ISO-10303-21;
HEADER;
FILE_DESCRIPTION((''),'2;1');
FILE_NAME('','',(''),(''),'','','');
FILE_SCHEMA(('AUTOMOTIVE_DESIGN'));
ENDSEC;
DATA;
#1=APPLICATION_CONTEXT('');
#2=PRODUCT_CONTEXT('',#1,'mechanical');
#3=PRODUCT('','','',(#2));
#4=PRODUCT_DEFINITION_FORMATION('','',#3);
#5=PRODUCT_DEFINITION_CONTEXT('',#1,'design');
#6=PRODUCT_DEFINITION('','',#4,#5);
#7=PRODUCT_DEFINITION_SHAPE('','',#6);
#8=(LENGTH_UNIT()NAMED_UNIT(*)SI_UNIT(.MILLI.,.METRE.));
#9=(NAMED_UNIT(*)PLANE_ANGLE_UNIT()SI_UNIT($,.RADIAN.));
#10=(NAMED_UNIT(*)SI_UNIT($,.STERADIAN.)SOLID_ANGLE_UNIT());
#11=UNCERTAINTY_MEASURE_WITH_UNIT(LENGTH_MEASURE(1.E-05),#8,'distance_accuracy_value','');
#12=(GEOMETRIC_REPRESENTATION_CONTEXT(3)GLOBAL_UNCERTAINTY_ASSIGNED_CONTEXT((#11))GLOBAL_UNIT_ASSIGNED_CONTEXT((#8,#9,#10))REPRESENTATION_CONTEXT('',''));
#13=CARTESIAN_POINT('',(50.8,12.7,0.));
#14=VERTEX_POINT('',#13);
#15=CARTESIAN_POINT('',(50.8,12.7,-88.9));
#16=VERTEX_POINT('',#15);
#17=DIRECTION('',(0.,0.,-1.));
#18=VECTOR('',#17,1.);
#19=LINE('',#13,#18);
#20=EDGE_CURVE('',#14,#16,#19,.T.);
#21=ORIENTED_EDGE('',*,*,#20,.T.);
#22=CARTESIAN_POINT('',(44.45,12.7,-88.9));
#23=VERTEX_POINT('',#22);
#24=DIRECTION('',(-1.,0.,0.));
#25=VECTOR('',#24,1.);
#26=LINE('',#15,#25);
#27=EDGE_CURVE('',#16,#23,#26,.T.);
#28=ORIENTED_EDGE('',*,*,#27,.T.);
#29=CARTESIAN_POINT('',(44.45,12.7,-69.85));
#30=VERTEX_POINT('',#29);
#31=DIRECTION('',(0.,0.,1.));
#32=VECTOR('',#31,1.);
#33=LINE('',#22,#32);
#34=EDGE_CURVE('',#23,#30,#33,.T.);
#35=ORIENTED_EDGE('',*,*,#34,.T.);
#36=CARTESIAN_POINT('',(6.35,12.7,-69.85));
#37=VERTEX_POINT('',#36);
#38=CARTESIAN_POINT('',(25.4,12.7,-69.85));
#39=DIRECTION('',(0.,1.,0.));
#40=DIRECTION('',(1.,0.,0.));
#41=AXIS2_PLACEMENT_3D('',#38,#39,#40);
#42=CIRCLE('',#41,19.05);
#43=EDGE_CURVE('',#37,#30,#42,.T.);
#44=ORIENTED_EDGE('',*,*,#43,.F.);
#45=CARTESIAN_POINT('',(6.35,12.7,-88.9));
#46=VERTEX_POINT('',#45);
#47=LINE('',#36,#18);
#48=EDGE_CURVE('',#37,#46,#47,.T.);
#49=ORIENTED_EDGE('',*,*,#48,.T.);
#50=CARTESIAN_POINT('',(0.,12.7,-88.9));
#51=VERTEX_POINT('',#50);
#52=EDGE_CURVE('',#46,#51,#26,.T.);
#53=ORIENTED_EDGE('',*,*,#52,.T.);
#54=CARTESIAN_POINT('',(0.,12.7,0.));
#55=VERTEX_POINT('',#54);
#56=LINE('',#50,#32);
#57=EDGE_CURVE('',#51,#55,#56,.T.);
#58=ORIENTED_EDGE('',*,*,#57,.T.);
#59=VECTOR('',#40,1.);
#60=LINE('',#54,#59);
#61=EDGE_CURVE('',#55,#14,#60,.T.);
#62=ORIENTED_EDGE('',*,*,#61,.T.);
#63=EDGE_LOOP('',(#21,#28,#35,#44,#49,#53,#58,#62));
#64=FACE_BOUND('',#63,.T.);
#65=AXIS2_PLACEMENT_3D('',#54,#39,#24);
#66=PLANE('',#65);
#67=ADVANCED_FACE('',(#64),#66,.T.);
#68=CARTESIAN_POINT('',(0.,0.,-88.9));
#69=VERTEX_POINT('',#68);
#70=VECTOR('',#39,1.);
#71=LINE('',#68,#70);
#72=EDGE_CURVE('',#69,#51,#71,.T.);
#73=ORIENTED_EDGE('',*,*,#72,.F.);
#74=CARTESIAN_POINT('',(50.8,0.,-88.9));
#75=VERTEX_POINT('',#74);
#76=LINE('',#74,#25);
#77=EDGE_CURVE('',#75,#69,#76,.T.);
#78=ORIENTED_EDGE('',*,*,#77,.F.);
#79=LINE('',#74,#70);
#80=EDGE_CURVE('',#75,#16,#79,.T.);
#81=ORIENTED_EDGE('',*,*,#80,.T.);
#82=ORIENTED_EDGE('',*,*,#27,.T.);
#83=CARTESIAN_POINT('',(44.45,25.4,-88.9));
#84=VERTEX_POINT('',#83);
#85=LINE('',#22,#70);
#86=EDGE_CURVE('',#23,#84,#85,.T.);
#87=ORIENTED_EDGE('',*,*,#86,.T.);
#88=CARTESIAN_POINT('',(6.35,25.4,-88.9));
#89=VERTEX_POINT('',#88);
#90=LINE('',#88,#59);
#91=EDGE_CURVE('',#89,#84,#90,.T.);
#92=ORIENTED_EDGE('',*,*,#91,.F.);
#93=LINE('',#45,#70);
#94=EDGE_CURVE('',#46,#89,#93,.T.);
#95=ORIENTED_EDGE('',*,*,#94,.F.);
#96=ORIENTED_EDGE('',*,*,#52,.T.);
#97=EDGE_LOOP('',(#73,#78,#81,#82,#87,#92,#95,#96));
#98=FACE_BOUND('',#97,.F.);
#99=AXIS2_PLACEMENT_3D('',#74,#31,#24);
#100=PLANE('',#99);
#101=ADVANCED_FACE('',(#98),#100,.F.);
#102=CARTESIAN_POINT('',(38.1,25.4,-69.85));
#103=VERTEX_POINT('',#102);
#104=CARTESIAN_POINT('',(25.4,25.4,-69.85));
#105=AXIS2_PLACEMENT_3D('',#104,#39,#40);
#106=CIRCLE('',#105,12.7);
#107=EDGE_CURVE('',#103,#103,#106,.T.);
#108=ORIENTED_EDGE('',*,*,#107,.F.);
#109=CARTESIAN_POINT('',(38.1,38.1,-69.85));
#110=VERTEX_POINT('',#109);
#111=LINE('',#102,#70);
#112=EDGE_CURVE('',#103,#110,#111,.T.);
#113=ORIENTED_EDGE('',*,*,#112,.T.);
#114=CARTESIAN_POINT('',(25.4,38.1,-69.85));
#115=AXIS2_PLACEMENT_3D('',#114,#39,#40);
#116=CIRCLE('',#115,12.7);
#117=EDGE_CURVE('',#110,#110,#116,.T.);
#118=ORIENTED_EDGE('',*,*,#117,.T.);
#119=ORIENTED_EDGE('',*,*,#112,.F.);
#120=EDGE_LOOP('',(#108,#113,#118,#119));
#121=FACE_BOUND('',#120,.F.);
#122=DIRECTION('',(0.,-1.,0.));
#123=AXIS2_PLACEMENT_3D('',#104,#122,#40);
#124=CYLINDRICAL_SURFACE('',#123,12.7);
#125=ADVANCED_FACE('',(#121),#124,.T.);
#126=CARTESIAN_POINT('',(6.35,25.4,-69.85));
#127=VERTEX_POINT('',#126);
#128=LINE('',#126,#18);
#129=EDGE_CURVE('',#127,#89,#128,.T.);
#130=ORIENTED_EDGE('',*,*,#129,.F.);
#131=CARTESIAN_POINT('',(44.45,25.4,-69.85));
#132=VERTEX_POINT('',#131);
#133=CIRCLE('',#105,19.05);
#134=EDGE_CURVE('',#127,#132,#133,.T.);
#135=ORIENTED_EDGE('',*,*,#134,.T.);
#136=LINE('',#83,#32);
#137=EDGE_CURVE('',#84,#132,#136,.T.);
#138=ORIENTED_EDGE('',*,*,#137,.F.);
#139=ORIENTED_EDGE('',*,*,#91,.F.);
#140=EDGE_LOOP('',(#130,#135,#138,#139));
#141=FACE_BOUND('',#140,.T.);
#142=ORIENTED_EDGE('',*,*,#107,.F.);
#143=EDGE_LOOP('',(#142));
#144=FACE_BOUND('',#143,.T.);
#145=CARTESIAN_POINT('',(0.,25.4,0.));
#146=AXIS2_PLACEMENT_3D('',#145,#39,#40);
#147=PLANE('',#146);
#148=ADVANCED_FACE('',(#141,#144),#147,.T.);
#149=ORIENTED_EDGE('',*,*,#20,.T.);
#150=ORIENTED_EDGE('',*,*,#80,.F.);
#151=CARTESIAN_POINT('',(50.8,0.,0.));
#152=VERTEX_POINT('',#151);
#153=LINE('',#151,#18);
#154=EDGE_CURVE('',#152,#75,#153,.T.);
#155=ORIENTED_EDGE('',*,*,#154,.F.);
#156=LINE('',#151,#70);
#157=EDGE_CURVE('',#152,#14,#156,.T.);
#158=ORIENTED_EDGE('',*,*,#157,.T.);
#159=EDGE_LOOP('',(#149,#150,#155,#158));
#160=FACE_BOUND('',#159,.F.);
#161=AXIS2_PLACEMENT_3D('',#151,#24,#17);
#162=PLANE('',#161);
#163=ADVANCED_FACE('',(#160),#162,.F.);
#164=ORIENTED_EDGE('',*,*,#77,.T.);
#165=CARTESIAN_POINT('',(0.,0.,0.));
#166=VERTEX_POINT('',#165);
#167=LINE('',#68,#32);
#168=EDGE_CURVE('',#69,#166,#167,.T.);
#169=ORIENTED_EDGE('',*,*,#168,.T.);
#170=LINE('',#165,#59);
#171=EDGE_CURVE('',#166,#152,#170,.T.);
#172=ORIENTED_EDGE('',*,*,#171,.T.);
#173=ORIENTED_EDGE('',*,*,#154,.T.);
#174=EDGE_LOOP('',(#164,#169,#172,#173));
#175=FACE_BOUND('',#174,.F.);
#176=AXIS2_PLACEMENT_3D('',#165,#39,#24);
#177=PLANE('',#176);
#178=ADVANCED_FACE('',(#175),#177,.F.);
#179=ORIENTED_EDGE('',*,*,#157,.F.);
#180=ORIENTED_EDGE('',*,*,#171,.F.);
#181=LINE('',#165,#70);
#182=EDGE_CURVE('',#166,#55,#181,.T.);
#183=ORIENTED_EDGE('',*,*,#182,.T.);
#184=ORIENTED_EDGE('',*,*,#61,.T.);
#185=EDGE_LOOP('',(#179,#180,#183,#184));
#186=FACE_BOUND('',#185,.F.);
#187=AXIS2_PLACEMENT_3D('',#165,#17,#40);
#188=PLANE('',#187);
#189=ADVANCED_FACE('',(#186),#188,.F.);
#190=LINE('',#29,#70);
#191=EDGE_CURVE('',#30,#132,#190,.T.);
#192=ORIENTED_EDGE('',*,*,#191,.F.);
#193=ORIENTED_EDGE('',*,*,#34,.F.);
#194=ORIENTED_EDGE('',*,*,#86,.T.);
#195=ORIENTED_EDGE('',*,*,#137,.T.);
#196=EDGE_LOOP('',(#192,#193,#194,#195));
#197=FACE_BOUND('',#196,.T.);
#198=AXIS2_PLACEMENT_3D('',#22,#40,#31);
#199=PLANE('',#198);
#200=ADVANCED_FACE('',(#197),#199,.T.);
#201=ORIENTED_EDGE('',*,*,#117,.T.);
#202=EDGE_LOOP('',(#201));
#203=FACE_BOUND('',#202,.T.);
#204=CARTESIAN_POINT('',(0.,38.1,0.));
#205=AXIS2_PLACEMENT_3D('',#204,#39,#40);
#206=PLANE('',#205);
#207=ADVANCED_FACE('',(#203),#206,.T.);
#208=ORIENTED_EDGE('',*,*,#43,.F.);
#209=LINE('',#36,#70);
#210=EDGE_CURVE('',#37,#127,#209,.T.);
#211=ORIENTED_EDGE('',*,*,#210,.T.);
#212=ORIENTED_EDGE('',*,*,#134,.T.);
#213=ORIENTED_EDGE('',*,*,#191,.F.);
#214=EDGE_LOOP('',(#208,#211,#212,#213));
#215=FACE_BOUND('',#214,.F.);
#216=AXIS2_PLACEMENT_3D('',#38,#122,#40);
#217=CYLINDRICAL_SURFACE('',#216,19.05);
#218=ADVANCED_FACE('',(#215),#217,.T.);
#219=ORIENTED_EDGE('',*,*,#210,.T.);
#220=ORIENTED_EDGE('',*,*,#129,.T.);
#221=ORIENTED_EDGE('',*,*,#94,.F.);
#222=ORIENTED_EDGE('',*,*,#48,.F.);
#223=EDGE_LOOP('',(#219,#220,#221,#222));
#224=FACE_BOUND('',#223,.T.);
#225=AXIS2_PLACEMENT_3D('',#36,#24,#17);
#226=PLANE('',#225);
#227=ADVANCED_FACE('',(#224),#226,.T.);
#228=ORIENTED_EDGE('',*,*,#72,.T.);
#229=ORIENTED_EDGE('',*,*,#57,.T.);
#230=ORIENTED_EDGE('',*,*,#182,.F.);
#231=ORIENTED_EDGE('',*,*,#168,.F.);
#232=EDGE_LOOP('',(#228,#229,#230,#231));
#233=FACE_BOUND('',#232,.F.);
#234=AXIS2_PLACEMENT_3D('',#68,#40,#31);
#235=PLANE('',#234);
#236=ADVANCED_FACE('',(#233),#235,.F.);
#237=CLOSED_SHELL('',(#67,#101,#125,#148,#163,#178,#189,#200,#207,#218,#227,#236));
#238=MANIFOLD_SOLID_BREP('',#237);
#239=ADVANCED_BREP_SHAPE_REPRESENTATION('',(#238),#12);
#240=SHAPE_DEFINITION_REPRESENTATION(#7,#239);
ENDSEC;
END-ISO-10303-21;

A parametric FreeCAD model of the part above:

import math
import FreeCAD as App
import Part
import Sketcher
from FreeCAD import Vector
Q = App.Units.Quantity

doc = App.newDocument("Part")
body = doc.addObject("PartDesign::Body", "Body")

sketch1 = doc.addObject("Sketcher::SketchObject", "Sketch")
body.addObject(sketch1)
sketch1.AttachmentSupport = (doc.XZ_Plane, [""])
sketch1.MapMode = "FlatFace"
sketch1.addGeometry([
    Part.LineSegment(Vector(0, -89, 0), Vector(0, 0, 0)),
    Part.LineSegment(Vector(0, 0, 0), Vector(51, 0, 0)),
    Part.LineSegment(Vector(51, 0, 0), Vector(51, -89, 0)),
    Part.LineSegment(Vector(51, -89, 0), Vector(0, -89, 0)),
], False)
sketch1.addConstraint([
    Sketcher.Constraint("Coincident", 0, 2, 1, 1),
    Sketcher.Constraint("Coincident", 1, 2, 2, 1),
    Sketcher.Constraint("Coincident", 2, 2, 3, 1),
    Sketcher.Constraint("Coincident", 3, 2, 0, 1),
    Sketcher.Constraint("Vertical", 0),
    Sketcher.Constraint("Horizontal", 1),
    Sketcher.Constraint("Vertical", 2),
    Sketcher.Constraint("Horizontal", 3),
    Sketcher.Constraint("Coincident", 0, 2, -1, 1),
    Sketcher.Constraint("DistanceX", 1, 1, 1, 2, Q("2 in")),
    Sketcher.Constraint("DistanceY", 0, 1, 0, 2, Q("3.5 in")),
])
pad1 = doc.addObject("PartDesign::Pad", "Pad")
body.addObject(pad1)
pad1.Profile = sketch1
pad1.Length = Q("0.5 in")
pad1.Reversed = True

sketch2 = doc.addObject("Sketcher::SketchObject", "Sketch001")
body.addObject(sketch2)
sketch2.AttachmentSupport = (doc.XZ_Plane, [""])
sketch2.MapMode = "FlatFace"
sketch2.AttachmentOffset = App.Placement(Vector(0, 0, -0.5 * 25.4), App.Rotation())
sketch2.addGeometry([
    Part.LineSegment(Vector(44, -70, 0), Vector(44, -89, 0)),
    Part.LineSegment(Vector(44, -89, 0), Vector(6, -89, 0)),
    Part.LineSegment(Vector(6, -89, 0), Vector(6, -70, 0)),
    Part.ArcOfCircle(Part.Circle(Vector(25, -70, 0), Vector(0, 0, 1), 19), math.radians(0), math.radians(180)),
], False)
sketch2.addConstraint([
    Sketcher.Constraint("Coincident", 0, 2, 1, 1),
    Sketcher.Constraint("Coincident", 1, 2, 2, 1),
    Sketcher.Constraint("Tangent", 2, 2, 3, 2),
    Sketcher.Constraint("Tangent", 3, 1, 0, 1),
    Sketcher.Constraint("Vertical", 0),
    Sketcher.Constraint("Horizontal", 1),
    Sketcher.Constraint("Vertical", 2),
    Sketcher.Constraint("Radius", 3, Q("0.75 in")),
    Sketcher.Constraint("DistanceY", 0, 2, 0, 1, Q("0.75 in")),
    Sketcher.Constraint("DistanceX", -1, 1, 1, 2, Q("0.25 in")),
    Sketcher.Constraint("DistanceY", 0, 2, -1, 1, Q("3.5 in")),
])
pad2 = doc.addObject("PartDesign::Pad", "Pad001")
body.addObject(pad2)
pad2.Profile = sketch2
pad2.Length = Q("0.5 in")
pad2.Reversed = True

sketch3 = doc.addObject("Sketcher::SketchObject", "Sketch002")
body.addObject(sketch3)
sketch3.AttachmentSupport = (doc.XZ_Plane, [""])
sketch3.MapMode = "FlatFace"
sketch3.AttachmentOffset = App.Placement(Vector(0, 0, -1 * 25.4), App.Rotation())
sketch3.addGeometry(Part.Circle(Vector(25, -70, 0), Vector(0, 0, 1), 13), False)
sketch3.addConstraint([
    Sketcher.Constraint("Diameter", 0, Q("1 in")),
    Sketcher.Constraint("DistanceX", -1, 1, 0, 3, Q("1 in")),
    Sketcher.Constraint("DistanceY", 0, 3, -1, 1, Q("2.75 in")),
])
pad3 = doc.addObject("PartDesign::Pad", "Pad002")
body.addObject(pad3)
pad3.Profile = sketch3
pad3.Length = Q("0.5 in")
pad3.Reversed = True

doc.recompute()
